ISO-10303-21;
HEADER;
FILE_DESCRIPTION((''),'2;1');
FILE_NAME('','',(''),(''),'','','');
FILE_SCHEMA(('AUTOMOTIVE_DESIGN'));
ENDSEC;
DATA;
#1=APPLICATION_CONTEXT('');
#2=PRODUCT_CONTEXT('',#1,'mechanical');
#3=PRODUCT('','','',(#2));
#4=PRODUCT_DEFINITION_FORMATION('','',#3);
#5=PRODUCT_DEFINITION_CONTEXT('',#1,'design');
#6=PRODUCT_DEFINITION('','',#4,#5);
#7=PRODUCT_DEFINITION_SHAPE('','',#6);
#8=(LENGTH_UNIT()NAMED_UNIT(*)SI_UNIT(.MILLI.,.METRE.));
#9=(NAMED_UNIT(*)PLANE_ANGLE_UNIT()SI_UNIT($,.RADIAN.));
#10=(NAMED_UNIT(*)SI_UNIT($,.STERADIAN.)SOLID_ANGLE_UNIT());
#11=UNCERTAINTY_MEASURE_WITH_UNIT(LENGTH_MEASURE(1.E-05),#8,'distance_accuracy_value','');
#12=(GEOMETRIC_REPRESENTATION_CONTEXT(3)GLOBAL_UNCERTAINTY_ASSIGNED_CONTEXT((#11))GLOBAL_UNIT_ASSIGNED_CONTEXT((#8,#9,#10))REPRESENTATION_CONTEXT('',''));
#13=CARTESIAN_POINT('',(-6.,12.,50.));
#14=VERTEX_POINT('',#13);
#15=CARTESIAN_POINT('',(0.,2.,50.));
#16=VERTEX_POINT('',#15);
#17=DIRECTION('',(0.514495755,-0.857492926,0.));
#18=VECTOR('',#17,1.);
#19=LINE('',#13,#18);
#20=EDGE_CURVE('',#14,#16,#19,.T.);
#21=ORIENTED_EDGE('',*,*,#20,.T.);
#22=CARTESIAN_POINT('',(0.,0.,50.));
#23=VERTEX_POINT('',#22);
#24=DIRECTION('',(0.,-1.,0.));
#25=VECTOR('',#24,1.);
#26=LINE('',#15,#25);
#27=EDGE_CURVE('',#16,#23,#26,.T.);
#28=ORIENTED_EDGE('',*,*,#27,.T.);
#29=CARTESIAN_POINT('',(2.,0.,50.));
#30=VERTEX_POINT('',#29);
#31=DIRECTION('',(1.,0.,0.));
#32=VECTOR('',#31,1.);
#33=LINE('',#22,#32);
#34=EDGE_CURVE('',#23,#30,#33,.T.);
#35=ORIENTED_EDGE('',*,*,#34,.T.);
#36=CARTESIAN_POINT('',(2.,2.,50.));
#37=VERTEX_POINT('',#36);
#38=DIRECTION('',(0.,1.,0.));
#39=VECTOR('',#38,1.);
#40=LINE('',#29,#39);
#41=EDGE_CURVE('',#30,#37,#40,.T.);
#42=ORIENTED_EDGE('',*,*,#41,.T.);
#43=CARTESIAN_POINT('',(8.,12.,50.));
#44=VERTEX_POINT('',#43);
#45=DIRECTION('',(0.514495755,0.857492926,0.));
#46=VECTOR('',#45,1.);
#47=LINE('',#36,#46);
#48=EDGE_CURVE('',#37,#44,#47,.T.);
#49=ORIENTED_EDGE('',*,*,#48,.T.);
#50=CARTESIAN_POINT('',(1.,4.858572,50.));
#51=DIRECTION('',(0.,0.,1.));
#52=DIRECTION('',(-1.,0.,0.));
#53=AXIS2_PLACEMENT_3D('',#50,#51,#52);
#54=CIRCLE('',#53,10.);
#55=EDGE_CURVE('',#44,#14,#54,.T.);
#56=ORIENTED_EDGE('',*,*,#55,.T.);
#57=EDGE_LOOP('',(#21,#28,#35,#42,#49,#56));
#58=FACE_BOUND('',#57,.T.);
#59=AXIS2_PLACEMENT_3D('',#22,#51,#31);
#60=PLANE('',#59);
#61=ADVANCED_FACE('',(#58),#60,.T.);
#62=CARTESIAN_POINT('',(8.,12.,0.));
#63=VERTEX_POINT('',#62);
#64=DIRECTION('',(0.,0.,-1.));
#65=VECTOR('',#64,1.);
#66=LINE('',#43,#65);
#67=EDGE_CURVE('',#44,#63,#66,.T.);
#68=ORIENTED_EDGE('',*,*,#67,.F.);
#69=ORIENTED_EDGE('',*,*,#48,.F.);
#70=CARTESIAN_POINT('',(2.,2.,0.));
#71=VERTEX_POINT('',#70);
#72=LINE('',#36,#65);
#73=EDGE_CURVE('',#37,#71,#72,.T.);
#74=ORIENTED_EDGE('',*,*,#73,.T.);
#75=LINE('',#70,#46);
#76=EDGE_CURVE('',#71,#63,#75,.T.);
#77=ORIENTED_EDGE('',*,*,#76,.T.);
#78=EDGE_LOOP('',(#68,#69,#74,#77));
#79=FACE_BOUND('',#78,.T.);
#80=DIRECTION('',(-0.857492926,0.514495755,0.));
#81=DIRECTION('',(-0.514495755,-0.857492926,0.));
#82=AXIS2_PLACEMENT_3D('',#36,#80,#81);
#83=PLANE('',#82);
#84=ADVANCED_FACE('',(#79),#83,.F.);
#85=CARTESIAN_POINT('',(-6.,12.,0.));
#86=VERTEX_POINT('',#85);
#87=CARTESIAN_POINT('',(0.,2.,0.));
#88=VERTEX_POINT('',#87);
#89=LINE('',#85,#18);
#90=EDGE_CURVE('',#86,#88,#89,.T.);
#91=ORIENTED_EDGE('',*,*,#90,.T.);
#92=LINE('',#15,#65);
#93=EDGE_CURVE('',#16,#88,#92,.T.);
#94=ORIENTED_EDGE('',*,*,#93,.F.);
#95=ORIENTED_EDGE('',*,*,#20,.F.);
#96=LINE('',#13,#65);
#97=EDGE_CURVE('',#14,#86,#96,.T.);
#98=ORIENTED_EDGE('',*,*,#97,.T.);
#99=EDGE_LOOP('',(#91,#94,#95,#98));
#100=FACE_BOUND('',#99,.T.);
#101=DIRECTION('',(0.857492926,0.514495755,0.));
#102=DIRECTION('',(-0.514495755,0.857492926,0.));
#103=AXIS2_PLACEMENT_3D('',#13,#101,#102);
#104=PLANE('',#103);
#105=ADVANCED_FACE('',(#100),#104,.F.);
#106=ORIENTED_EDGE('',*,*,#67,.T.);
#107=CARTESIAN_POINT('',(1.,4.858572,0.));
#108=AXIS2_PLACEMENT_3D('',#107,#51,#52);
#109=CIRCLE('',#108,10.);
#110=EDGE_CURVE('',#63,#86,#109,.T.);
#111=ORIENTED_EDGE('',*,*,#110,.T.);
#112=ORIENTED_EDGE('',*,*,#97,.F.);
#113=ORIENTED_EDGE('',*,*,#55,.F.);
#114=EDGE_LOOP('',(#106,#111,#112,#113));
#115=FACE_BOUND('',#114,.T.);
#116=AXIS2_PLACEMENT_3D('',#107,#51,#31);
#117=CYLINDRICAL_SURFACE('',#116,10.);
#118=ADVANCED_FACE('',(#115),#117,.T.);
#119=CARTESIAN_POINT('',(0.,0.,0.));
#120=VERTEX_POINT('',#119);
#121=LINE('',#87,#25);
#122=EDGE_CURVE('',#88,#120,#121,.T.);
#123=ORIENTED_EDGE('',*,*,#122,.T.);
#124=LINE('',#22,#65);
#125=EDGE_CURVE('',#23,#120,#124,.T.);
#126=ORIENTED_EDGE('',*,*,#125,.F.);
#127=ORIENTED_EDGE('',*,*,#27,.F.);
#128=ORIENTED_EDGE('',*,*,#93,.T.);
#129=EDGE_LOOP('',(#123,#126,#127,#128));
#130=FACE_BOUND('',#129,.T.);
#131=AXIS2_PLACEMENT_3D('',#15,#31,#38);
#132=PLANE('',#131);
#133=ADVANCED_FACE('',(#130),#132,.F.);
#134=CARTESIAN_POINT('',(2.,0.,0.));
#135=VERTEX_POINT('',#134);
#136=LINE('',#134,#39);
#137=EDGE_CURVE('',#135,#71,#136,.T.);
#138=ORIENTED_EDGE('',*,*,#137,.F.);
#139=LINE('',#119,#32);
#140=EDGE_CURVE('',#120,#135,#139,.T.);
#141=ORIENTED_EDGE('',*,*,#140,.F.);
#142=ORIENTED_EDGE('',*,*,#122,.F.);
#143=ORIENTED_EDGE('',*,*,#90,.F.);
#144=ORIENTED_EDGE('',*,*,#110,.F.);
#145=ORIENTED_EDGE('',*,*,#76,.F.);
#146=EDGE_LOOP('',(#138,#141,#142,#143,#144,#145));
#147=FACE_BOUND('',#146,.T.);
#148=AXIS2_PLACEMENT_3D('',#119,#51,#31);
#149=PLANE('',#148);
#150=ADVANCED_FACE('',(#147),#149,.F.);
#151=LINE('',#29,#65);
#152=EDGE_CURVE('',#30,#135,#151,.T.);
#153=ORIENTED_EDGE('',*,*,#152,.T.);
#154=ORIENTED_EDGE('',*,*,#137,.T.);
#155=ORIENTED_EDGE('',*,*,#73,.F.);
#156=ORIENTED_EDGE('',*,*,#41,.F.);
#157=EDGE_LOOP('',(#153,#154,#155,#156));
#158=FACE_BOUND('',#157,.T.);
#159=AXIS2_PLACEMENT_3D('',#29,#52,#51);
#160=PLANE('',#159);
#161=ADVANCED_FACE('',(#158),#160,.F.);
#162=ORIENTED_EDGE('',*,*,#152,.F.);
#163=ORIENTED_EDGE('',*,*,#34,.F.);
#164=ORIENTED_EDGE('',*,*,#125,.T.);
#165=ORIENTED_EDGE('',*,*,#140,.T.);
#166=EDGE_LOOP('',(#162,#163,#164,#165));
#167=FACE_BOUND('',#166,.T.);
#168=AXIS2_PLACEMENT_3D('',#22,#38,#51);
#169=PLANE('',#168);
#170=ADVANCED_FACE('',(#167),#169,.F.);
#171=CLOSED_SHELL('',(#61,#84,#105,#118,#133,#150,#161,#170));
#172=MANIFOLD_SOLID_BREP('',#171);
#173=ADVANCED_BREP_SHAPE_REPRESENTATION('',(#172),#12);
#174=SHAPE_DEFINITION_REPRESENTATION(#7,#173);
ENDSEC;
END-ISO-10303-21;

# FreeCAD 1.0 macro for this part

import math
import FreeCAD as App
import Part
import Sketcher
Q = App.Units.Quantity

doc = App.newDocument("Part")
params = doc.addObject("Spreadsheet::Sheet", "Params")
for row, (alias, value) in enumerate([
    ("sketch1_width", "2 mm"),
    ("sketch1_width2", "14 mm"),
    ("pad1_length", "50 mm"),
    ("sketch2_radius", "10 mm"),
    ("sketch2_width", "14 mm"),
    ("pad2_length", "50 mm"),
], start=1):
    params.set(f"A{row}", alias)
    params.set(f"B{row}", "=" + value)
    params.setAlias(f"B{row}", alias)

body = doc.addObject("PartDesign::Body", "Body")

sketch1 = doc.addObject("Sketcher::SketchObject", "Sketch")
body.addObject(sketch1)
sketch1.AttachmentSupport = (doc.XY_Plane, [""])
sketch1.MapMode = "FlatFace"
sketch1.addGeometry([
    Part.LineSegment(App.Vector(0, 0, 0), App.Vector(2, 0, 0)),
    Part.LineSegment(App.Vector(2, 0, 0), App.Vector(2, 2, 0)),
    Part.LineSegment(App.Vector(2, 2, 0), App.Vector(8, 12, 0)),
    Part.LineSegment(App.Vector(8, 12, 0), App.Vector(-6, 12, 0)),
    Part.LineSegment(App.Vector(-6, 12, 0), App.Vector(0, 2, 0)),
    Part.LineSegment(App.Vector(0, 2, 0), App.Vector(0, 0, 0)),
], False)
sketch1.addConstraint([
    Sketcher.Constraint("Coincident", 0, 2, 1, 1),
    Sketcher.Constraint("Coincident", 1, 2, 2, 1),
    Sketcher.Constraint("Coincident", 2, 2, 3, 1),
    Sketcher.Constraint("Coincident", 3, 2, 4, 1),
    Sketcher.Constraint("Coincident", 4, 2, 5, 1),
    Sketcher.Constraint("Coincident", 5, 2, 0, 1),
    Sketcher.Constraint("Horizontal", 0),
    Sketcher.Constraint("Vertical", 1),
    Sketcher.Constraint("Horizontal", 3),
    Sketcher.Constraint("Vertical", 5),
    Sketcher.Constraint("Coincident", 5, 2, -1, 1),
    Sketcher.Constraint("Horizontal", 1, 2, 4, 2),
    Sketcher.Constraint("Equal", 0, 1),
    Sketcher.Constraint("Equal", 2, 4),
    Sketcher.Constraint("DistanceX", 0, 1, 0, 2, Q("2 mm")),
    Sketcher.Constraint("DistanceX", 3, 2, 3, 1, Q("14 mm")),
    Sketcher.Constraint("DistanceY", -1, 1, 2, 2, Q("12 mm")),
])
sketch1.setExpression("Constraints[14]", "Params.sketch1_width")
sketch1.setExpression("Constraints[15]", "Params.sketch1_width2")
pad1 = doc.addObject("PartDesign::Pad", "Pad")
body.addObject(pad1)
pad1.Profile = sketch1
pad1.setExpression("Length", "Params.pad1_length")

sketch2 = doc.addObject("Sketcher::SketchObject", "Sketch001")
body.addObject(sketch2)
sketch2.AttachmentSupport = (doc.XY_Plane, [""])
sketch2.MapMode = "FlatFace"
sketch2.AttachmentOffset = App.Placement(App.Vector(0, 0, 50), App.Rotation())
sketch2.addGeometry([
    Part.LineSegment(App.Vector(-6, 12, 0), App.Vector(8, 12, 0)),
    Part.ArcOfCircle(Part.Circle(App.Vector(1, 5, 0), App.Vector(0, 0, 1), 10), math.radians(46), math.radians(134)),
], False)
sketch2.addConstraint([
    Sketcher.Constraint("Coincident", 0, 1, 1, 2),
    Sketcher.Constraint("Coincident", 1, 1, 0, 2),
    Sketcher.Constraint("Horizontal", 0),
    Sketcher.Constraint("Radius", 1, Q("10 mm")),
    Sketcher.Constraint("DistanceX", 0, 1, 0, 2, Q("14 mm")),
    Sketcher.Constraint("DistanceX", -1, 1, 1, 3, Q("1 mm")),
    Sketcher.Constraint("DistanceY", -1, 1, 0, 1, Q("12 mm")),
])
sketch2.setExpression("Constraints[3]", "Params.sketch2_radius")
sketch2.setExpression("Constraints[4]", "Params.sketch2_width")
pad2 = doc.addObject("PartDesign::Pad", "Pad001")
body.addObject(pad2)
pad2.Profile = sketch2
pad2.setExpression("Length", "Params.pad2_length")
pad2.Reversed = True

doc.recompute()
